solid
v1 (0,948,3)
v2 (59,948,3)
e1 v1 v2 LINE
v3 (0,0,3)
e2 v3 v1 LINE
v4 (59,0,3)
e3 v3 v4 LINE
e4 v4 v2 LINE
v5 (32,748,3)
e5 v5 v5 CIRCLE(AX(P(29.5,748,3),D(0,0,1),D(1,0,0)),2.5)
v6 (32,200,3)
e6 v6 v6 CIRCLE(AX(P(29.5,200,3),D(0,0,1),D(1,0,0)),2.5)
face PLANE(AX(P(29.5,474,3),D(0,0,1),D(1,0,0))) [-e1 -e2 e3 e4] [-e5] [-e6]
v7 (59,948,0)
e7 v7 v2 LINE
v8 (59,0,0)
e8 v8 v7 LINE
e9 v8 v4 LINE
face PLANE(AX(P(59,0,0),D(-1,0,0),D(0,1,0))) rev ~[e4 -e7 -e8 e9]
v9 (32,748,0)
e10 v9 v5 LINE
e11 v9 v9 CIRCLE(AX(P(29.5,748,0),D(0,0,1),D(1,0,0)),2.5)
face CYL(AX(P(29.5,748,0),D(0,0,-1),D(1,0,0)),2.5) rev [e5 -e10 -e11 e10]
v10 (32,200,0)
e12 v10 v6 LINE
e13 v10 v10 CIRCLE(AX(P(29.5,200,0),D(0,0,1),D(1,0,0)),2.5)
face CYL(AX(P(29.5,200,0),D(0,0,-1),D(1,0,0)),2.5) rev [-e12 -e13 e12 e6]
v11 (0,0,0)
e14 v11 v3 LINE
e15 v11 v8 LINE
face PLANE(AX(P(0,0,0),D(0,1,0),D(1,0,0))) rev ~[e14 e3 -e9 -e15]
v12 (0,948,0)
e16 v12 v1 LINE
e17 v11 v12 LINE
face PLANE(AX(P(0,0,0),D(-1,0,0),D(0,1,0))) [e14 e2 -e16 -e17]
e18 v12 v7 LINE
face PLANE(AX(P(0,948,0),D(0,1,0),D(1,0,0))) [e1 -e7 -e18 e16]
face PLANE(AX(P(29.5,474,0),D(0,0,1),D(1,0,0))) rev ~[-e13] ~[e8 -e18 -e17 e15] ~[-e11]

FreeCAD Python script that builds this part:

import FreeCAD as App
import Part
import Sketcher

V = App.Vector
Q = App.Units.Quantity


def add_polygon(sketch, points):
    """Adds a closed chain of lines whose ends are joined by coincident constraints."""
    first, n = sketch.GeometryCount, len(points)
    for a, b in zip(points, points[1:] + points[:1]):
        sketch.addGeometry(Part.LineSegment(App.Vector(*a, 0), App.Vector(*b, 0)), False)
    for i in range(n):
        sketch.addConstraint(Sketcher.Constraint("Coincident", first + i, 2, first + (i + 1) % n, 1))

doc = App.newDocument("Part")
params = doc.addObject("Spreadsheet::Sheet", "Params")
for row, (alias, value) in enumerate([
    ("sketch1_diameter", "5 mm"),
    ("sketch1_width", "59 mm"),
    ("sketch1_height", "948 mm"),
    ("pad1_length", "3 mm"),
], start=1):
    params.set(f"A{row}", alias)
    params.set(f"B{row}", "=" + value)
    params.setAlias(f"B{row}", alias)

body = doc.addObject("PartDesign::Body", "Body")

# Sketch on XY plane
sketch1 = body.newObject("Sketcher::SketchObject", "Sketch")
sketch1.AttachmentSupport = (doc.getObject("XY_Plane"), [""])
sketch1.MapMode = "FlatFace"
add_polygon(sketch1, [(0, 948), (0, 0), (59, 0), (59, 948)])  # lines 0-3
sketch1.addGeometry(Part.Circle(V(29.5, 200, 0), V(0, 0, 1), 2.5), False)  # 4
sketch1.addGeometry(Part.Circle(V(29.5, 748, 0), V(0, 0, 1), 2.5), False)  # 5
sketch1.addConstraint([
    Sketcher.Constraint("Vertical", 0),
    Sketcher.Constraint("Horizontal", 1),
    Sketcher.Constraint("Vertical", 2),
    Sketcher.Constraint("Horizontal", 3),
    Sketcher.Constraint("Coincident", 0, 2, -1, 1),
    Sketcher.Constraint("Equal", 4, 5),
    Sketcher.Constraint("Vertical", 4, 3, 5, 3),
    Sketcher.Constraint("Diameter", 4, Q("5 mm")),
    Sketcher.Constraint("DistanceX", 1, 1, 1, 2, Q("59 mm")),
    Sketcher.Constraint("DistanceY", 0, 2, 0, 1, Q("948 mm")),
    Sketcher.Constraint("DistanceY", -1, 1, 4, 3, Q("200 mm")),
    Sketcher.Constraint("DistanceY", -1, 1, 5, 3, Q("748 mm")),
    Sketcher.Constraint("DistanceX", -1, 1, 4, 3, Q("29.5 mm")),
])
sketch1.setExpression("Constraints[11]", "Params.sketch1_diameter")
sketch1.setExpression("Constraints[12]", "Params.sketch1_width")
sketch1.setExpression("Constraints[13]", "Params.sketch1_height")
pad1 = body.newObject("PartDesign::Pad", "Pad")
pad1.Profile = sketch1
pad1.setExpression("Length", "Params.pad1_length")

doc.recompute()
